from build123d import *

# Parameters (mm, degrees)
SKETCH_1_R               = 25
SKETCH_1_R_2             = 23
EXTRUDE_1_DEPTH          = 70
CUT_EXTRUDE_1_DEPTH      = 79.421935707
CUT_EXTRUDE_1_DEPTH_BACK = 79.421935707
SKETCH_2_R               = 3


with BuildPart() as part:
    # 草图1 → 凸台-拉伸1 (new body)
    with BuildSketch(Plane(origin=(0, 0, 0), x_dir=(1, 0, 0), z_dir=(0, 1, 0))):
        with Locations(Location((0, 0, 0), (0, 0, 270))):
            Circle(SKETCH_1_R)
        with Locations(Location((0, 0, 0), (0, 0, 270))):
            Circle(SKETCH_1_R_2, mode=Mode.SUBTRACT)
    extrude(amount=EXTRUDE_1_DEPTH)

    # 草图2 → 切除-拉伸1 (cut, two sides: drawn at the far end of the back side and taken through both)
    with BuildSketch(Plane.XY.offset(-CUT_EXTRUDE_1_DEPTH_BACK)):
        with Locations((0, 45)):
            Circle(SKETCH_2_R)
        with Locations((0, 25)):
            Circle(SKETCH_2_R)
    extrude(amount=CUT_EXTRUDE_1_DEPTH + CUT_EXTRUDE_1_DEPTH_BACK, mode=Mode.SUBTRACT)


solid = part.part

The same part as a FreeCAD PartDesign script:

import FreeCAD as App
import Part
import Sketcher

V = App.Vector
Q = App.Units.Quantity

doc = App.newDocument("Part")
params = doc.addObject("Spreadsheet::Sheet", "Params")
for row, (alias, value) in enumerate([
    ("sketch1_diameter", "50 mm"),
    ("sketch1_diameter2", "46 mm"),
    ("pad1_length", "70 mm"),
    ("sketch2_diameter", "6 mm"),
], start=1):
    params.set(f"A{row}", alias)
    params.set(f"B{row}", "=" + value)
    params.setAlias(f"B{row}", alias)

body = doc.addObject("PartDesign::Body", "Body")

sketch1 = body.newObject("Sketcher::SketchObject", "Sketch")
sketch1.AttachmentSupport = (doc.getObject("XZ_Plane"), [""])
sketch1.MapMode = "FlatFace"
sketch1.addGeometry([
    Part.Circle(V(0, 0, 0), V(0, 0, 1), 25),
    Part.Circle(V(0, 0, 0), V(0, 0, 1), 23),
], False)
sketch1.addConstraint([
    Sketcher.Constraint("Coincident", 0, 3, -1, 1),
    Sketcher.Constraint("Coincident", 1, 3, -1, 1),
    Sketcher.Constraint("Diameter", 0, Q("50 mm")),
    Sketcher.Constraint("Diameter", 1, Q("46 mm")),
])
sketch1.setExpression("Constraints[2]", "Params.sketch1_diameter")
sketch1.setExpression("Constraints[3]", "Params.sketch1_diameter2")
pad1 = body.newObject("PartDesign::Pad", "Pad")
pad1.Profile = sketch1
pad1.setExpression("Length", "Params.pad1_length")
pad1.Reversed = True

sketch2 = body.newObject("Sketcher::SketchObject", "Sketch001")
sketch2.AttachmentSupport = (doc.getObject("XY_Plane"), [""])
sketch2.MapMode = "FlatFace"
sketch2.addGeometry([
    Part.Circle(V(0, 45, 0), V(0, 0, 1), 3),
    Part.Circle(V(0, 25, 0), V(0, 0, 1), 3),
], False)
sketch2.addConstraint([
    Sketcher.Constraint("Equal", 0, 1),
    Sketcher.Constraint("PointOnObject", 0, 3, -2),
    Sketcher.Constraint("PointOnObject", 1, 3, -2),
    Sketcher.Constraint("Diameter", 0, Q("6 mm")),
    Sketcher.Constraint("DistanceY", -1, 1, 0, 3, Q("45 mm")),
    Sketcher.Constraint("DistanceY", -1, 1, 1, 3, Q("25 mm")),
])
sketch2.setExpression("Constraints[3]", "Params.sketch2_diameter")
pocket1 = body.newObject("PartDesign::Pocket", "Pocket")
pocket1.Profile = sketch2
pocket1.Type = "ThroughAll"
pocket1.Midplane = True

doc.recompute()
